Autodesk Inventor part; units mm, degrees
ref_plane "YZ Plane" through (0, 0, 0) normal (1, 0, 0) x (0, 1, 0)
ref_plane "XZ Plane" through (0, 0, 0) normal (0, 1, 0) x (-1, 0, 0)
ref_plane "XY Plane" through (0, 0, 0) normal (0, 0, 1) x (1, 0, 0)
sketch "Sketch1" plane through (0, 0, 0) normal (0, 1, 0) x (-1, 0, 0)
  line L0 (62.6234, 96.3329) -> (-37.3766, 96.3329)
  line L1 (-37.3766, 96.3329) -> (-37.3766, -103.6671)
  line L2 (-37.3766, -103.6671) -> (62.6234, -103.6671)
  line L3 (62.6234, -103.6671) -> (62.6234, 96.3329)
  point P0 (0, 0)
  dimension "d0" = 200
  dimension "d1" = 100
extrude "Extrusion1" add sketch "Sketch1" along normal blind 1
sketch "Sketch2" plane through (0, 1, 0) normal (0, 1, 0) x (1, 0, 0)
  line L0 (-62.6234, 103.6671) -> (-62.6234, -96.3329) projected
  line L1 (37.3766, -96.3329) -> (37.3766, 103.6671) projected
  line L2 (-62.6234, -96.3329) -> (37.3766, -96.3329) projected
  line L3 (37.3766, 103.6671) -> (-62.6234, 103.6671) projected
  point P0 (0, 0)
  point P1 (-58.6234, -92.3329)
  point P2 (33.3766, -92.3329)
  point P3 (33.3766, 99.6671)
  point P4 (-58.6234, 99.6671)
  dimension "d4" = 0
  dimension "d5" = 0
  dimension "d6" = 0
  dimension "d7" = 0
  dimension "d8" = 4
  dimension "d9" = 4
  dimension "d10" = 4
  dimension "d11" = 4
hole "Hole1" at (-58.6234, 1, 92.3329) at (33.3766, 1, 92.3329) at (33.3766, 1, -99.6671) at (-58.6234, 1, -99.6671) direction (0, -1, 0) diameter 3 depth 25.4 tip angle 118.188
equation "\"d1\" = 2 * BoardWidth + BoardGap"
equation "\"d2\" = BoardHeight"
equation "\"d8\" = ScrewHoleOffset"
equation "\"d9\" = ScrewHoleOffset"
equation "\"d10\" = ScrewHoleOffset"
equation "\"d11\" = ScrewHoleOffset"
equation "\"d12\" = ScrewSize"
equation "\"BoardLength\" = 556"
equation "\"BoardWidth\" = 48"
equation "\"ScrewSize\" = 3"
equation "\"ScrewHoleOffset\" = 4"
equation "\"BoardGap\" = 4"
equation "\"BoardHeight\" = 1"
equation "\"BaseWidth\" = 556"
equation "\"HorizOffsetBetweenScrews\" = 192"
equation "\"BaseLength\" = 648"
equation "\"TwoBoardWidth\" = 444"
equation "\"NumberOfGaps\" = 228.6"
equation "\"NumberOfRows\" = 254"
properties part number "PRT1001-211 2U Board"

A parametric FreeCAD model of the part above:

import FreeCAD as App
import Part
import Sketcher

doc = App.newDocument("Part")
body = doc.addObject("PartDesign::Body", "Body")

# Sketch on XZ plane
sketch1 = body.newObject("Sketcher::SketchObject", "Sketch")
sketch1.AttachmentSupport = (doc.getObject("XZ_Plane"), [""])
sketch1.MapMode = "FlatFace"
sketch1.addGeometry(Part.LineSegment(App.Vector(-63, -104, 0), App.Vector(-63, 96, 0)), False)
sketch1.addGeometry(Part.LineSegment(App.Vector(-63, 96, 0), App.Vector(37, 96, 0)), False)
sketch1.addGeometry(Part.LineSegment(App.Vector(37, 96, 0), App.Vector(37, -104, 0)), False)
sketch1.addGeometry(Part.LineSegment(App.Vector(37, -104, 0), App.Vector(-63, -104, 0)), False)
sketch1.addConstraint(Sketcher.Constraint("Coincident", 0, 2, 1, 1))
sketch1.addConstraint(Sketcher.Constraint("Coincident", 1, 2, 2, 1))
sketch1.addConstraint(Sketcher.Constraint("Coincident", 2, 2, 3, 1))
sketch1.addConstraint(Sketcher.Constraint("Coincident", 3, 2, 0, 1))
sketch1.addConstraint(Sketcher.Constraint("Vertical", 0))
sketch1.addConstraint(Sketcher.Constraint("Horizontal", 1))
sketch1.addConstraint(Sketcher.Constraint("Vertical", 2))
sketch1.addConstraint(Sketcher.Constraint("Horizontal", 3))
sketch1.addConstraint(Sketcher.Constraint("DistanceX", 1, 1, 1, 2, 100.0))
sketch1.addConstraint(Sketcher.Constraint("DistanceY", 0, 1, 0, 2, 200.0))
sketch1.addConstraint(Sketcher.Constraint("DistanceY", -1, 1, 0, 2, 96.333))
sketch1.addConstraint(Sketcher.Constraint("DistanceX", 0, 2, -1, 1, 62.6234))
pad1 = body.newObject("PartDesign::Pad", "Pad")
pad1.Profile = sketch1
pad1.Length = 1
pad1.Reversed = True

# Sketch on XZ plane
sketch2 = body.newObject("Sketcher::SketchObject", "Sketch001")
sketch2.AttachmentSupport = (doc.getObject("XZ_Plane"), [""])
sketch2.MapMode = "FlatFace"
sketch2.AttachmentOffset = App.Placement(App.Vector(0, 0, -1), App.Rotation())
sketch2.addGeometry(Part.Circle(App.Vector(-58.6, 92.3, 0), App.Vector(0, 0, 1), 1.5), False)
sketch2.addGeometry(Part.Circle(App.Vector(33.4, 92.3, 0), App.Vector(0, 0, 1), 1.5), False)
sketch2.addGeometry(Part.Circle(App.Vector(33.4, -99.7, 0), App.Vector(0, 0, 1), 1.5), False)
sketch2.addGeometry(Part.Circle(App.Vector(-58.6, -99.7, 0), App.Vector(0, 0, 1), 1.5), False)
sketch2.addConstraint(Sketcher.Constraint("Equal", 0, 1))
sketch2.addConstraint(Sketcher.Constraint("Equal", 1, 2))
sketch2.addConstraint(Sketcher.Constraint("Equal", 2, 3))
sketch2.addConstraint(Sketcher.Constraint("Horizontal", 0, 3, 1, 3))
sketch2.addConstraint(Sketcher.Constraint("Horizontal", 2, 3, 3, 3))
sketch2.addConstraint(Sketcher.Constraint("Vertical", 1, 3, 2, 3))
sketch2.addConstraint(Sketcher.Constraint("Vertical", 0, 3, 3, 3))
sketch2.addConstraint(Sketcher.Constraint("Diameter", 0, 3.0))
sketch2.addConstraint(Sketcher.Constraint("DistanceX", 0, 3, 1, 3, 92.0))
sketch2.addConstraint(Sketcher.Constraint("DistanceY", 2, 3, 1, 3, 192.0))
sketch2.addConstraint(Sketcher.Constraint("DistanceY", -1, 1, 0, 3, 92.333))
sketch2.addConstraint(Sketcher.Constraint("DistanceX", 0, 3, -1, 1, 58.6234))
doc.recompute()
hole = body.newObject("PartDesign::Hole", "Hole")
hole.Profile = sketch2
hole.ThreadType = "None"
hole.Diameter = 3
hole.DepthType = "Dimension"
hole.Depth = 25.4
hole.DrillPoint = "Angled"
hole.DrillPointAngle = 118.188
hole.Reversed = True

doc.recompute()
